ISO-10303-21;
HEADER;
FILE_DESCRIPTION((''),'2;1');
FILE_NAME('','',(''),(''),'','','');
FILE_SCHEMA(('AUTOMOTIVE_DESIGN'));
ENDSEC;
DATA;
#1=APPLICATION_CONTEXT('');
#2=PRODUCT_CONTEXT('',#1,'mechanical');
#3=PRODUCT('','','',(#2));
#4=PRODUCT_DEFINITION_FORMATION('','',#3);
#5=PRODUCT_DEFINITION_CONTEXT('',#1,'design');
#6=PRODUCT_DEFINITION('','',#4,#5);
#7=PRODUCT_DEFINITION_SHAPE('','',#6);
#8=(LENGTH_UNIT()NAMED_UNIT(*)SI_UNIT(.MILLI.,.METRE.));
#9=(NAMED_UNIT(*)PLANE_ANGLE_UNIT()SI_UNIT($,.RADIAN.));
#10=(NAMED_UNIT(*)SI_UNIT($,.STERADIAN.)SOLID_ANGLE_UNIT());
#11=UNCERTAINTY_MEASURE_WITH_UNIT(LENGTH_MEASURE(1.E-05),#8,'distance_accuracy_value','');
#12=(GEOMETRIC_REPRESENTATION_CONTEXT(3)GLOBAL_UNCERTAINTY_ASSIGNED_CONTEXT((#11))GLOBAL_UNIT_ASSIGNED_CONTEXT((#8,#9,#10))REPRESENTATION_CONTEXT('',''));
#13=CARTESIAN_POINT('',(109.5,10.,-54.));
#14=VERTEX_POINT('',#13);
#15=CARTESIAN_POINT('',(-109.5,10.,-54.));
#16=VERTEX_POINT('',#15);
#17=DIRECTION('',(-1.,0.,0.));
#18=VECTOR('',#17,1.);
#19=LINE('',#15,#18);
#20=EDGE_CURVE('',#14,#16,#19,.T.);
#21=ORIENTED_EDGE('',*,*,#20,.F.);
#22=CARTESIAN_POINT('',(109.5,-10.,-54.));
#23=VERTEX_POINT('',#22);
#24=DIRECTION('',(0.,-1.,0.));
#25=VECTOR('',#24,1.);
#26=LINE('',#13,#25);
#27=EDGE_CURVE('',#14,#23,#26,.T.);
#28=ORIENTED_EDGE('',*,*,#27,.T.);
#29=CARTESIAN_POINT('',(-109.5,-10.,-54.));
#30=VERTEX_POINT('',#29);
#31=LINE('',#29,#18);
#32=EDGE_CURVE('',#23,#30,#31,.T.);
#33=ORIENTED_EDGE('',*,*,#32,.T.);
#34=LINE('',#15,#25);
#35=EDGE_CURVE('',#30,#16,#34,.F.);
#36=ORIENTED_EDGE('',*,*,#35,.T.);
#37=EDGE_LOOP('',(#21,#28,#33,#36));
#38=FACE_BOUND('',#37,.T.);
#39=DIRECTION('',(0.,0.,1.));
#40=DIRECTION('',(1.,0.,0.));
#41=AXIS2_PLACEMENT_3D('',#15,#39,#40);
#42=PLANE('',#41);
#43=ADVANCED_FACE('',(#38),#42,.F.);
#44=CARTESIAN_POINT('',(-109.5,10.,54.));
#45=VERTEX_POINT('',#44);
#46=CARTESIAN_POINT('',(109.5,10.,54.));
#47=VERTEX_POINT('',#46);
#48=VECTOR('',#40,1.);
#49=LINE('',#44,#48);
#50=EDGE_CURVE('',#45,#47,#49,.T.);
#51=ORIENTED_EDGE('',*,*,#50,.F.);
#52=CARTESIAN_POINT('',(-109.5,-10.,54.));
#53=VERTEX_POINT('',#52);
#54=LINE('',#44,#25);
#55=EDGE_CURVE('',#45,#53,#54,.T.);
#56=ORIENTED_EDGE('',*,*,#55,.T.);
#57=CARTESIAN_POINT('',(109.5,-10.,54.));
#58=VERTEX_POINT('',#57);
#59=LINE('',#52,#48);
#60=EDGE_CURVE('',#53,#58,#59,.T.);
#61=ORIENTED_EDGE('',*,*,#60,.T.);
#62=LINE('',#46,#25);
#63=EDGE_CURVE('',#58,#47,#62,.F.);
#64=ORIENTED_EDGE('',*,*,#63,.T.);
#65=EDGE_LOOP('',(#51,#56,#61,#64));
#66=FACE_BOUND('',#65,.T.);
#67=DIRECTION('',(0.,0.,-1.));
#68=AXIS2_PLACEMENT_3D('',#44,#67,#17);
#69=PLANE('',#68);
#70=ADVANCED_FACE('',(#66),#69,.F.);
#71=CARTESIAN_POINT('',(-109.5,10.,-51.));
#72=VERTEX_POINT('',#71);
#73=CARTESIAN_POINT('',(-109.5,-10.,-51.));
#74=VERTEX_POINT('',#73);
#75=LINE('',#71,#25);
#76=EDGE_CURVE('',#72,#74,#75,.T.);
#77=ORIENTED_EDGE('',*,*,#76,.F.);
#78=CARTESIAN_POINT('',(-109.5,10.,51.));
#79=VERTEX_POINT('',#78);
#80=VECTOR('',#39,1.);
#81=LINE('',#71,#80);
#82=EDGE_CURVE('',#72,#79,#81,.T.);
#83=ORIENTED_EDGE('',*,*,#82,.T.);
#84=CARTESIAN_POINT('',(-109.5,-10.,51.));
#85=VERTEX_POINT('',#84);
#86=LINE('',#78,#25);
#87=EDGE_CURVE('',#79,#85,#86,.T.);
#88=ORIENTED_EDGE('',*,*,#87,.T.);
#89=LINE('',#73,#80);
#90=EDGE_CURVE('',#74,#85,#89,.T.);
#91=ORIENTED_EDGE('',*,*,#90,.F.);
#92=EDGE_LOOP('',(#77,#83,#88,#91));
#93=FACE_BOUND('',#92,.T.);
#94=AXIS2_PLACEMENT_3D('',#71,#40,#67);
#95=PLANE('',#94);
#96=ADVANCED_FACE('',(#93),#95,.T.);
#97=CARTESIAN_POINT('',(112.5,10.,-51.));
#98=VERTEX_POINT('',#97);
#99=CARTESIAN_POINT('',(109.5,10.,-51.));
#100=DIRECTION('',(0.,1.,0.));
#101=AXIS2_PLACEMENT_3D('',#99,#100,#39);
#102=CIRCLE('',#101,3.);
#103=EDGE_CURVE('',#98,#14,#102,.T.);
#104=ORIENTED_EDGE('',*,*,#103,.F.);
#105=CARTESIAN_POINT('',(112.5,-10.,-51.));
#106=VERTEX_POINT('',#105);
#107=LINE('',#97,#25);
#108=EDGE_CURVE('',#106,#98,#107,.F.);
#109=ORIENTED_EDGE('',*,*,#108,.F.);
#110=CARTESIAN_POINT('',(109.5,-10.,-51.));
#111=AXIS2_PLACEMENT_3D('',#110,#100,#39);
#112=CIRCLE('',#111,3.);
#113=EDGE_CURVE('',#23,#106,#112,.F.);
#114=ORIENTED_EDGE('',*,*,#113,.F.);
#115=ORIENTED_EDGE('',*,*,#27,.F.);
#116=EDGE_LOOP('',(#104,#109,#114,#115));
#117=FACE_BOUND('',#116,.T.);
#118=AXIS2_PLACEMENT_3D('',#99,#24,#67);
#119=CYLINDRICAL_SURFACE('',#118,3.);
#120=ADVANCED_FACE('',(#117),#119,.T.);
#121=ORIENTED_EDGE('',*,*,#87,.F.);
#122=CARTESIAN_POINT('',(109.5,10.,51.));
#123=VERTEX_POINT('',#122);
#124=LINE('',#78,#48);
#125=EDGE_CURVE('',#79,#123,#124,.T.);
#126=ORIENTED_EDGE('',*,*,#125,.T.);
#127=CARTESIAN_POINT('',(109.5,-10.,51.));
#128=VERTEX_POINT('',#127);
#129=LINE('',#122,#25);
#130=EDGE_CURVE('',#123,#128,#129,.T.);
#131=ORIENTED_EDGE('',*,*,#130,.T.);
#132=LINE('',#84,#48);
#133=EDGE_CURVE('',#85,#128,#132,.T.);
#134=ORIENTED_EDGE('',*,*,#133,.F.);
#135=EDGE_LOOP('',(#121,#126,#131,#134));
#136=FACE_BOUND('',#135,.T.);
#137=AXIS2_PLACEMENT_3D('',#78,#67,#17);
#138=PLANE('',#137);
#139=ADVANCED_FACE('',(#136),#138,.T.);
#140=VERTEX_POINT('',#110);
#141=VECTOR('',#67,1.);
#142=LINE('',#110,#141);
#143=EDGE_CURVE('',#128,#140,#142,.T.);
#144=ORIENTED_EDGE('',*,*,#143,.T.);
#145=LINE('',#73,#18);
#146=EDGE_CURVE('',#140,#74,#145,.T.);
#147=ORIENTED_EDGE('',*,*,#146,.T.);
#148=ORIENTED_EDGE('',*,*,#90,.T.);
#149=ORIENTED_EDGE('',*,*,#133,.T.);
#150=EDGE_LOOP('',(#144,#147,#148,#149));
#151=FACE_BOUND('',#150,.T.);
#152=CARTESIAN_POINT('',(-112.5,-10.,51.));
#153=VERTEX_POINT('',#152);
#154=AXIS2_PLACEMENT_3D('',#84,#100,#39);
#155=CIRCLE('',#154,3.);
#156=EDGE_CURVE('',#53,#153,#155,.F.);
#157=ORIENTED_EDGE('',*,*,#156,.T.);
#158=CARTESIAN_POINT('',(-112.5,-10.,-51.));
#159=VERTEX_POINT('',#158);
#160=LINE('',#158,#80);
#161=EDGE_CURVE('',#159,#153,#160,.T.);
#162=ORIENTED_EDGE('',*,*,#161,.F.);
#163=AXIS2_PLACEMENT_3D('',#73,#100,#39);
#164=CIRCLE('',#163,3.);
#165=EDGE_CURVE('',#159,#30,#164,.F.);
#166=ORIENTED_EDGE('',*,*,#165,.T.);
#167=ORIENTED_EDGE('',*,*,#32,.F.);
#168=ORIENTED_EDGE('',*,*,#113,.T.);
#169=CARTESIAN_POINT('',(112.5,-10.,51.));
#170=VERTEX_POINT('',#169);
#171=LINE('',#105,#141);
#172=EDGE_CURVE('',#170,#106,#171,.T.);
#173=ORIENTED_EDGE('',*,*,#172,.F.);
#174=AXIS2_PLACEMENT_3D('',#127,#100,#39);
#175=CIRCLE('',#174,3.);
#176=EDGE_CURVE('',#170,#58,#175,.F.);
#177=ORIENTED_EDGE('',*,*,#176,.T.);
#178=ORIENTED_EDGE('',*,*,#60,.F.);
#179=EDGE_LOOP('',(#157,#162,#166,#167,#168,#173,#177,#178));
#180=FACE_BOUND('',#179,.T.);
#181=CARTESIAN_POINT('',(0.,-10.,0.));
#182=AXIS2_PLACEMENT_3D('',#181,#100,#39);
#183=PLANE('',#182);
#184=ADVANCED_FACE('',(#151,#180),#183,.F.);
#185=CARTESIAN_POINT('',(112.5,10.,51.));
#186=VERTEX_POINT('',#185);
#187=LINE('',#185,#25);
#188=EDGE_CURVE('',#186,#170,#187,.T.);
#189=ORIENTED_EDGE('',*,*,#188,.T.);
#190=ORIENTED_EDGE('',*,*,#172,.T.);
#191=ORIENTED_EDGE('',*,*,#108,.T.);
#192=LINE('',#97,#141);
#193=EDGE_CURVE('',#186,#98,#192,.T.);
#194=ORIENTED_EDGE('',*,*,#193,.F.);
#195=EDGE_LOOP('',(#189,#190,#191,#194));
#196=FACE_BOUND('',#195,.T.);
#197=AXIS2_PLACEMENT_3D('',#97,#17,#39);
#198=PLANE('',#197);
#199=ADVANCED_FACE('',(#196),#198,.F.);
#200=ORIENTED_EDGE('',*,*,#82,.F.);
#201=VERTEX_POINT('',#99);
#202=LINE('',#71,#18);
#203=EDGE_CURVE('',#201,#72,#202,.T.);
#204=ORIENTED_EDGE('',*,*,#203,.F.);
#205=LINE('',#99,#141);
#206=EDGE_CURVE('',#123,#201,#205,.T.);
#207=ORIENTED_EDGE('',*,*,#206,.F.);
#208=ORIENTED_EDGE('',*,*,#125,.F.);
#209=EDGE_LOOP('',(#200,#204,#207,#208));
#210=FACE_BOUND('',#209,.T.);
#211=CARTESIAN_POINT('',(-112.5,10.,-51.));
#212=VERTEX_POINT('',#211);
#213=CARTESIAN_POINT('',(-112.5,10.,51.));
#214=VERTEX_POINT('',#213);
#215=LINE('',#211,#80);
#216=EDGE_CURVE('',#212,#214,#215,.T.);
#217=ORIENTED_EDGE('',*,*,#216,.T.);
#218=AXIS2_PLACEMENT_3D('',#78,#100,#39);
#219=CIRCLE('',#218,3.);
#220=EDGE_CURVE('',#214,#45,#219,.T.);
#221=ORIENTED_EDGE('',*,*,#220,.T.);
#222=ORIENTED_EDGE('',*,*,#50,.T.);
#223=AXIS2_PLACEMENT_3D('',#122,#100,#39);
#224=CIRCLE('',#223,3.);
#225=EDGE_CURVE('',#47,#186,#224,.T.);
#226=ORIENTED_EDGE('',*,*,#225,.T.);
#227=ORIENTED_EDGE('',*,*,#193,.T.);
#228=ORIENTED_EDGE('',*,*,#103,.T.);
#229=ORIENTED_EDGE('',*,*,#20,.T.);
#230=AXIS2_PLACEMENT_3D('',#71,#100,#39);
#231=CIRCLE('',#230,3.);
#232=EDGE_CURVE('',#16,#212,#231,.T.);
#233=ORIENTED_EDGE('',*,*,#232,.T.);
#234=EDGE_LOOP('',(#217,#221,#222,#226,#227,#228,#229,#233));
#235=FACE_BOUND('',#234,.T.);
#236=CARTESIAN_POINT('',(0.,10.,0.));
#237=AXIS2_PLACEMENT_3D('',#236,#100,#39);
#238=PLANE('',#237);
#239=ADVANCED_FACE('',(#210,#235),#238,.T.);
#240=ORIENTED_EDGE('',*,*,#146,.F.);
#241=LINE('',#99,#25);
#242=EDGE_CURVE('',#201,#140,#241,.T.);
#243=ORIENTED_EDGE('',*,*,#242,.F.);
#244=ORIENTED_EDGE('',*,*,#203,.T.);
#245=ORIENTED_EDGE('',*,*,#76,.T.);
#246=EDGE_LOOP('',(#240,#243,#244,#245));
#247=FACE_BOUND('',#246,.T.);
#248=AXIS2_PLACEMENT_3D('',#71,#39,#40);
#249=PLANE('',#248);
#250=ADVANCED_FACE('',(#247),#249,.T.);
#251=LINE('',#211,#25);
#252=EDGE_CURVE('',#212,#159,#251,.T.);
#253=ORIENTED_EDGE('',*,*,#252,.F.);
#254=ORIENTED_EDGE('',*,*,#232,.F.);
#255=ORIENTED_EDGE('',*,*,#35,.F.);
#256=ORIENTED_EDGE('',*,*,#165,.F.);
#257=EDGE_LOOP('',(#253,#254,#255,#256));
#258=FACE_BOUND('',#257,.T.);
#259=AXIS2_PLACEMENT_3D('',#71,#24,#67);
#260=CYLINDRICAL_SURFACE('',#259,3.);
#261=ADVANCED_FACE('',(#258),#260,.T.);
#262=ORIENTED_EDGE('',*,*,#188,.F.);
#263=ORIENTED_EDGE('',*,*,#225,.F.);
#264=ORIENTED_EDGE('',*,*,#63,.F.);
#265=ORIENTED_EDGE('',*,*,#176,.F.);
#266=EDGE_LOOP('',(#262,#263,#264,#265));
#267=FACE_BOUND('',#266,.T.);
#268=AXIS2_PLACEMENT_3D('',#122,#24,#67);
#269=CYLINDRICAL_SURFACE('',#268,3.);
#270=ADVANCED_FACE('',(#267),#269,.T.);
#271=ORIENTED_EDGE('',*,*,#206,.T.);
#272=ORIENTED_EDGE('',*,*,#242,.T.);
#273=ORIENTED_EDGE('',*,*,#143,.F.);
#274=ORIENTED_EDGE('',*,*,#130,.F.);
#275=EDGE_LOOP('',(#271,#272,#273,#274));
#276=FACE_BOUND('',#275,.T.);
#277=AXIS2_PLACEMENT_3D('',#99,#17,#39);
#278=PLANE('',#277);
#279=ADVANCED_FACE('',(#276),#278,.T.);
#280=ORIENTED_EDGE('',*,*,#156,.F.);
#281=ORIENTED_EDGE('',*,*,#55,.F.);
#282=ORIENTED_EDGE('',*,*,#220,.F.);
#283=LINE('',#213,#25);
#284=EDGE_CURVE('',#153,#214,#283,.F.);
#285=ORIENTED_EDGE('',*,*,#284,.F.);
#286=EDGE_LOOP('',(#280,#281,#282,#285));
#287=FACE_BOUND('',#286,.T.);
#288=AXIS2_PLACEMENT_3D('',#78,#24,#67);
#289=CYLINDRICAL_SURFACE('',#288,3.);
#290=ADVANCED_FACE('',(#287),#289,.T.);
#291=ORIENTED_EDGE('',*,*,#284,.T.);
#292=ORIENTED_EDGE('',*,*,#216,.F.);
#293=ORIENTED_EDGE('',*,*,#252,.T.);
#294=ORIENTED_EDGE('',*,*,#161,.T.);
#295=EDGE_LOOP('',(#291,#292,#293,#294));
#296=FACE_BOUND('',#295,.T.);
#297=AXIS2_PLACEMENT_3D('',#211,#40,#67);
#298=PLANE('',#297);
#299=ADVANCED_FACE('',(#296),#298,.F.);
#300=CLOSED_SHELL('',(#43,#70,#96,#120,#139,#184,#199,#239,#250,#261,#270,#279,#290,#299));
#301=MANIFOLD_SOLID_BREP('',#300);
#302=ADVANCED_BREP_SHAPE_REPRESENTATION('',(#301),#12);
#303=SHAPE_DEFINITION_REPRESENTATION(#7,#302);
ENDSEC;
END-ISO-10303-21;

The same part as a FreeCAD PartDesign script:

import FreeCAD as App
import Part
import Sketcher


def edges_at(feature, points):
    """Names of the edges that pass closest to the given points."""
    edges = feature.Shape.Edges
    near = lambda p: min(range(len(edges)), key=lambda i: edges[i].distToShape(Part.Vertex(*p))[0])
    return sorted({f"Edge{near(p) + 1}" for p in points})

doc = App.newDocument("Part")
params = doc.addObject("Spreadsheet::Sheet", "Params")
for row, (alias, value) in enumerate([
    ("sketch1_width", "225 mm"),
    ("sketch1_width2", "219 mm"),
    ("sketch1_height", "108 mm"),
    ("sketch1_height2", "102 mm"),
    ("pad1_length", "20 mm"),
    ("fillet_radius", "3 mm"),
], start=1):
    params.set(f"A{row}", alias)
    params.set(f"B{row}", "=" + value)
    params.setAlias(f"B{row}", alias)

body = doc.addObject("PartDesign::Body", "Body")

sketch1 = body.newObject("Sketcher::SketchObject", "Sketch")
sketch1.AttachmentSupport = (doc.getObject("XZ_Plane"), [""])
sketch1.MapMode = "FlatFace"
sketch1.addGeometry([
    Part.LineSegment(App.Vector(-112, -54, 0), App.Vector(-112, 54, 0)),
    Part.LineSegment(App.Vector(-112, 54, 0), App.Vector(112, 54, 0)),
    Part.LineSegment(App.Vector(112, 54, 0), App.Vector(112, -54, 0)),
    Part.LineSegment(App.Vector(112, -54, 0), App.Vector(-112, -54, 0)),
    Part.LineSegment(App.Vector(110, 51, 0), App.Vector(-110, 51, 0)),
    Part.LineSegment(App.Vector(-110, 51, 0), App.Vector(-110, -51, 0)),
    Part.LineSegment(App.Vector(-110, -51, 0), App.Vector(110, -51, 0)),
    Part.LineSegment(App.Vector(110, -51, 0), App.Vector(110, 51, 0)),
], False)
sketch1.addConstraint([
    Sketcher.Constraint("Coincident", 0, 2, 1, 1),
    Sketcher.Constraint("Coincident", 1, 2, 2, 1),
    Sketcher.Constraint("Coincident", 2, 2, 3, 1),
    Sketcher.Constraint("Coincident", 3, 2, 0, 1),
    Sketcher.Constraint("Coincident", 4, 2, 5, 1),
    Sketcher.Constraint("Coincident", 5, 2, 6, 1),
    Sketcher.Constraint("Coincident", 6, 2, 7, 1),
    Sketcher.Constraint("Coincident", 7, 2, 4, 1),
    Sketcher.Constraint("Vertical", 0),
    Sketcher.Constraint("Horizontal", 1),
    Sketcher.Constraint("Vertical", 2),
    Sketcher.Constraint("Horizontal", 3),
    Sketcher.Constraint("Horizontal", 4),
    Sketcher.Constraint("Vertical", 5),
    Sketcher.Constraint("Horizontal", 6),
    Sketcher.Constraint("Vertical", 7),
    Sketcher.Constraint("Symmetric", 0, 2, 2, 2, -1, 1),
    Sketcher.Constraint("Symmetric", 4, 2, 6, 2, -1, 1),
    Sketcher.Constraint("DistanceX", 1, 1, 1, 2, 225.0),
    Sketcher.Constraint("DistanceX", 4, 2, 4, 1, 219.0),
    Sketcher.Constraint("DistanceY", 0, 1, 0, 2, 108.0),
    Sketcher.Constraint("DistanceY", 5, 2, 5, 1, 102.0),
])
sketch1.setExpression("Constraints[18]", "Params.sketch1_width")
sketch1.setExpression("Constraints[19]", "Params.sketch1_width2")
sketch1.setExpression("Constraints[20]", "Params.sketch1_height")
sketch1.setExpression("Constraints[21]", "Params.sketch1_height2")
pad1 = body.newObject("PartDesign::Pad", "Pad")
pad1.Profile = sketch1
pad1.setExpression("Length", "Params.pad1_length")
pad1.Midplane = True
doc.recompute()

fillet = body.newObject("PartDesign::Fillet", "Fillet")
fillet.Base = (pad1, edges_at(pad1, [
    (-112.5, 0, -54),
    (112.5, 0, -54),
    (112.5, 0, 54),
    (-112.5, 0, 54),
]))
fillet.setExpression("Radius", "Params.fillet_radius")

doc.recompute()
